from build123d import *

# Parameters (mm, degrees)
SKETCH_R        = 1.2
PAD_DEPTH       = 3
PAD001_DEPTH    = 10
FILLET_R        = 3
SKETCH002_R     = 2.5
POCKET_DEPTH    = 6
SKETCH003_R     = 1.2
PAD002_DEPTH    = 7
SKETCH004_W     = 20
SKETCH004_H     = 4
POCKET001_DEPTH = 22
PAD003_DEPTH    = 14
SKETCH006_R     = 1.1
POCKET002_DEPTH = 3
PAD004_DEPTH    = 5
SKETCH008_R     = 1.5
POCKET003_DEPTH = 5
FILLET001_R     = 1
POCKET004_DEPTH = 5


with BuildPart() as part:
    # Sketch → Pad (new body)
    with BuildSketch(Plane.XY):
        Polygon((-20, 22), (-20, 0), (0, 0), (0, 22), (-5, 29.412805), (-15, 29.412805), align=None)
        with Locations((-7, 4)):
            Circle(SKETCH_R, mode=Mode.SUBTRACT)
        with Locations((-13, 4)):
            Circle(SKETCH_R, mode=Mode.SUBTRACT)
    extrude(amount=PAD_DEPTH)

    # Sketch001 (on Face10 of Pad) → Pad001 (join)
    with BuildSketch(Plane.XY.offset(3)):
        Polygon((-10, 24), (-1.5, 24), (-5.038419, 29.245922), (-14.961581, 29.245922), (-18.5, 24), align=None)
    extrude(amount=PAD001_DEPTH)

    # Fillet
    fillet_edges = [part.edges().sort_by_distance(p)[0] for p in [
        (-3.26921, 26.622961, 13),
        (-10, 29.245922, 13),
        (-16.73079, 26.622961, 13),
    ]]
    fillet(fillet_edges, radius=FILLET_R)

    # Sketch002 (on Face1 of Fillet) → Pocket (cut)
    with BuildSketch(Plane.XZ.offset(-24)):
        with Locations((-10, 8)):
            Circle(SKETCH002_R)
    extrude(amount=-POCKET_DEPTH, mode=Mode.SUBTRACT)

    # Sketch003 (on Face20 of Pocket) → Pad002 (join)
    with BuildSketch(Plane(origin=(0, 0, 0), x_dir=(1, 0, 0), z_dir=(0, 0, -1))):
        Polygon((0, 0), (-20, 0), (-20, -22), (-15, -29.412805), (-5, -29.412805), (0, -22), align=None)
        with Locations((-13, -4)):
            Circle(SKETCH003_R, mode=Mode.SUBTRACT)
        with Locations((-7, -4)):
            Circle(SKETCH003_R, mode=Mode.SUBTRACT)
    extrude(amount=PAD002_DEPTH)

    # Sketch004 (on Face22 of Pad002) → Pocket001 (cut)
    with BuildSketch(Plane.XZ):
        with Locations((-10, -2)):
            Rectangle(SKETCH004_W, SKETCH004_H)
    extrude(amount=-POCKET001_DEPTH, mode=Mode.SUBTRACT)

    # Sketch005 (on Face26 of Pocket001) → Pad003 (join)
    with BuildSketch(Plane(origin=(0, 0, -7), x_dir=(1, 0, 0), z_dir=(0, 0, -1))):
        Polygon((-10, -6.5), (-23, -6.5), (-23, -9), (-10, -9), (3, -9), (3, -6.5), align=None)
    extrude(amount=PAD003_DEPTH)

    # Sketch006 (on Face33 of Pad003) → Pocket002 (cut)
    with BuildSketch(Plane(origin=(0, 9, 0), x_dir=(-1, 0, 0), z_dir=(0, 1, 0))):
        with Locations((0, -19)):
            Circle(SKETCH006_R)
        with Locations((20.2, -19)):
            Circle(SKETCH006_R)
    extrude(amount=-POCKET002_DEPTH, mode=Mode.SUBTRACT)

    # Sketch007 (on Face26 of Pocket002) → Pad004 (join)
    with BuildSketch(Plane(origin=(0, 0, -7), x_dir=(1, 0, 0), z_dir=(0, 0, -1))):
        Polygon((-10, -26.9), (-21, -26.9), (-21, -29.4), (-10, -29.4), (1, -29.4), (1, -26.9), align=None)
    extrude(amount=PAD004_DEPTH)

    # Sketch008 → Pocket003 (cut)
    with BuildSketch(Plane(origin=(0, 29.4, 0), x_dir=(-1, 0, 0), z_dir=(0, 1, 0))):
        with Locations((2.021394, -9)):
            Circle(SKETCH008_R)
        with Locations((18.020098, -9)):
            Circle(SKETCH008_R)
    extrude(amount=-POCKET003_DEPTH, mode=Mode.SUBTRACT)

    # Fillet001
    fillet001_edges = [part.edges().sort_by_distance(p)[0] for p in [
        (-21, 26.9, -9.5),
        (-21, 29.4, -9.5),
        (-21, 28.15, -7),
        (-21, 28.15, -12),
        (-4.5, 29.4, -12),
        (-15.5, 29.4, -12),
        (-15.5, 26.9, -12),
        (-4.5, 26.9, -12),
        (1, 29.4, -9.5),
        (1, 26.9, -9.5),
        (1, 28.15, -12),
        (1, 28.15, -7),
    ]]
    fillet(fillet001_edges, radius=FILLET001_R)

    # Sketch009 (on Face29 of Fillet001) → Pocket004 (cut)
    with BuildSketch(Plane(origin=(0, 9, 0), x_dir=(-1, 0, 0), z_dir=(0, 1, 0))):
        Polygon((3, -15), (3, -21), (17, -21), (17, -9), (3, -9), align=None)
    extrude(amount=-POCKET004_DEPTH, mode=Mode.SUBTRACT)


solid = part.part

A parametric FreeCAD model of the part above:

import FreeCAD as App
import Part
import Sketcher
Q = App.Units.Quantity


def edges_at(feature, points):
    """Names of the edges that pass closest to the given points."""
    edges = feature.Shape.Edges
    near = lambda p: min(range(len(edges)), key=lambda i: edges[i].distToShape(Part.Vertex(*p))[0])
    return sorted({f"Edge{near(p) + 1}" for p in points})

doc = App.newDocument("Part")
body = doc.addObject("PartDesign::Body", "Body")

sketch1 = doc.addObject("Sketcher::SketchObject", "Sketch")
body.addObject(sketch1)
sketch1.AttachmentSupport = (doc.XY_Plane, [""])
sketch1.MapMode = "FlatFace"
sketch1.addGeometry(Part.LineSegment(App.Vector(-20, 22, 0), App.Vector(-20, 0, 0)), False)
sketch1.addGeometry(Part.LineSegment(App.Vector(-20, 0, 0), App.Vector(0, 0, 0)), False)
sketch1.addGeometry(Part.LineSegment(App.Vector(0, 0, 0), App.Vector(0, 22, 0)), False)
sketch1.addGeometry(Part.LineSegment(App.Vector(0, 22, 0), App.Vector(-5, 29.412805, 0)), False)
sketch1.addGeometry(Part.LineSegment(App.Vector(-5, 29.412805, 0), App.Vector(-15, 29.412805, 0)), False)
sketch1.addGeometry(Part.LineSegment(App.Vector(-15, 29.412805, 0), App.Vector(-20, 22, 0)), False)
sketch1.addGeometry(Part.Circle(App.Vector(-13, 4, 0), App.Vector(0, 0, 1), 1.2), False)
sketch1.addGeometry(Part.Circle(App.Vector(-7, 4, 0), App.Vector(0, 0, 1), 1.2), False)
sketch1.addConstraint(Sketcher.Constraint("Coincident", 0, 2, 1, 1))
sketch1.addConstraint(Sketcher.Constraint("Coincident", 1, 2, 2, 1))
sketch1.addConstraint(Sketcher.Constraint("Coincident", 2, 2, 3, 1))
sketch1.addConstraint(Sketcher.Constraint("Coincident", 3, 2, 4, 1))
sketch1.addConstraint(Sketcher.Constraint("Coincident", 4, 2, 5, 1))
sketch1.addConstraint(Sketcher.Constraint("Coincident", 5, 2, 0, 1))
sketch1.addConstraint(Sketcher.Constraint("Vertical", 0))
sketch1.addConstraint(Sketcher.Constraint("Horizontal", 1))
sketch1.addConstraint(Sketcher.Constraint("Vertical", 2))
sketch1.addConstraint(Sketcher.Constraint("Horizontal", 4))
sketch1.addConstraint(Sketcher.Constraint("Coincident", 1, 2, -1, 1))
sketch1.addConstraint(Sketcher.Constraint("Equal", 6, 7))
sketch1.addConstraint(Sketcher.Constraint("Horizontal", 6, 3, 7, 3))
sketch1.addConstraint(Sketcher.Constraint("Horizontal", 2, 2, 5, 2))
sketch1.addConstraint(Sketcher.Constraint("Equal", 3, 5))
sketch1.addConstraint(Sketcher.Constraint("Diameter", 6, Q("2.4 mm")))
sketch1.addConstraint(Sketcher.Constraint("DistanceX", 1, 1, 1, 2, Q("20 mm")))
sketch1.addConstraint(Sketcher.Constraint("DistanceX", 4, 2, 4, 1, Q("10 mm")))
sketch1.addConstraint(Sketcher.Constraint("DistanceY", 0, 2, 0, 1, Q("22 mm")))
sketch1.addConstraint(Sketcher.Constraint("Angle", 3, Q("123.999999 deg")))
sketch1.addConstraint(Sketcher.Constraint("DistanceX", 6, 3, -1, 1, Q("13 mm")))
sketch1.addConstraint(Sketcher.Constraint("DistanceY", -1, 1, 6, 3, Q("4 mm")))
sketch1.addConstraint(Sketcher.Constraint("DistanceX", 7, 3, -1, 1, Q("7 mm")))
pad1 = doc.addObject("PartDesign::Pad", "Pad")
body.addObject(pad1)
pad1.Profile = sketch1
pad1.Length = 3

sketch2 = doc.addObject("Sketcher::SketchObject", "Sketch001")
body.addObject(sketch2)
sketch2.AttachmentSupport = (doc.XY_Plane, [""])
sketch2.MapMode = "FlatFace"
sketch2.AttachmentOffset = App.Placement(App.Vector(0, 0, 3), App.Rotation())
sketch2.addGeometry(Part.LineSegment(App.Vector(-1.5, 24, 0), App.Vector(-5.038419, 29.245922, 0)), False)
sketch2.addGeometry(Part.LineSegment(App.Vector(-5.038419, 29.245922, 0), App.Vector(-14.961581, 29.245922, 0)), False)
sketch2.addGeometry(Part.LineSegment(App.Vector(-14.961581, 29.245922, 0), App.Vector(-18.5, 24, 0)), False)
sketch2.addGeometry(Part.LineSegment(App.Vector(-18.5, 24, 0), App.Vector(-1.5, 24, 0)), False)
sketch2.addConstraint(Sketcher.Constraint("Coincident", 0, 2, 1, 1))
sketch2.addConstraint(Sketcher.Constraint("Coincident", 1, 2, 2, 1))
sketch2.addConstraint(Sketcher.Constraint("Coincident", 2, 2, 3, 1))
sketch2.addConstraint(Sketcher.Constraint("Coincident", 3, 2, 0, 1))
sketch2.addConstraint(Sketcher.Constraint("Horizontal", 1))
sketch2.addConstraint(Sketcher.Constraint("Horizontal", 3))
sketch2.addConstraint(Sketcher.Constraint("Equal", 0, 2))
sketch2.addConstraint(Sketcher.Constraint("DistanceX", 3, 1, 3, 2, Q("17 mm")))
sketch2.addConstraint(Sketcher.Constraint("Angle", 0, Q("123.999999 deg")))
sketch2.addConstraint(Sketcher.Constraint("DistanceY", -1, 1, 2, 2, Q("24 mm")))
sketch2.addConstraint(Sketcher.Constraint("DistanceX", 2, 2, -1, 1, Q("18.5 mm")))
sketch2.addConstraint(Sketcher.Constraint("DistanceX", 1, 2, 1, 1, Q("9.923162 mm")))
pad2 = doc.addObject("PartDesign::Pad", "Pad001")
body.addObject(pad2)
pad2.Profile = sketch2
pad2.Length = 10
doc.recompute()

fillet = doc.addObject("PartDesign::Fillet", "Fillet")
body.addObject(fillet)
fillet.Base = (pad2, edges_at(pad2, [(-3.269, 26.623, 13), (-10, 29.246, 13), (-16.731, 26.623, 13)]))
fillet.Radius = 3

sketch3 = doc.addObject("Sketcher::SketchObject", "Sketch002")
body.addObject(sketch3)
sketch3.AttachmentSupport = (doc.XZ_Plane, [""])
sketch3.MapMode = "FlatFace"
sketch3.AttachmentOffset = App.Placement(App.Vector(0, 0, -24), App.Rotation())
sketch3.addGeometry(Part.Circle(App.Vector(-10, 8, 0), App.Vector(0, 0, 1), 2.5), False)
sketch3.addConstraint(Sketcher.Constraint("Diameter", 0, Q("5 mm")))
sketch3.addConstraint(Sketcher.Constraint("DistanceX", 0, 3, -1, 1, Q("10 mm")))
sketch3.addConstraint(Sketcher.Constraint("DistanceY", -1, 1, 0, 3, Q("8 mm")))
pocket1 = doc.addObject("PartDesign::Pocket", "Pocket")
body.addObject(pocket1)
pocket1.Profile = sketch3
pocket1.Length = 6

sketch4 = doc.addObject("Sketcher::SketchObject", "Sketch003")
body.addObject(sketch4)
sketch4.AttachmentSupport = (doc.XY_Plane, [""])
sketch4.MapMode = "FlatFace"
sketch4.addGeometry(Part.LineSegment(App.Vector(0, 0, 0), App.Vector(-20, 0, 0)), False)
sketch4.addGeometry(Part.LineSegment(App.Vector(-20, 0, 0), App.Vector(-20, 22, 0)), False)
sketch4.addGeometry(Part.LineSegment(App.Vector(-20, 22, 0), App.Vector(-15, 29.412805, 0)), False)
sketch4.addGeometry(Part.LineSegment(App.Vector(-15, 29.412805, 0), App.Vector(-5, 29.412805, 0)), False)
sketch4.addGeometry(Part.LineSegment(App.Vector(-5, 29.412805, 0), App.Vector(0, 22, 0)), False)
sketch4.addGeometry(Part.LineSegment(App.Vector(0, 22, 0), App.Vector(0, 0, 0)), False)
sketch4.addGeometry(Part.Circle(App.Vector(-13, 4, 0), App.Vector(0, 0, 1), 1.2), False)
sketch4.addGeometry(Part.Circle(App.Vector(-7, 4, 0), App.Vector(0, 0, 1), 1.2), False)
sketch4.addConstraint(Sketcher.Constraint("Coincident", 0, 2, 1, 1))
sketch4.addConstraint(Sketcher.Constraint("Coincident", 1, 2, 2, 1))
sketch4.addConstraint(Sketcher.Constraint("Coincident", 2, 2, 3, 1))
sketch4.addConstraint(Sketcher.Constraint("Coincident", 3, 2, 4, 1))
sketch4.addConstraint(Sketcher.Constraint("Coincident", 4, 2, 5, 1))
sketch4.addConstraint(Sketcher.Constraint("Coincident", 5, 2, 0, 1))
sketch4.addConstraint(Sketcher.Constraint("Horizontal", 0))
sketch4.addConstraint(Sketcher.Constraint("Vertical", 1))
sketch4.addConstraint(Sketcher.Constraint("Horizontal", 3))
sketch4.addConstraint(Sketcher.Constraint("Vertical", 5))
sketch4.addConstraint(Sketcher.Constraint("Coincident", 5, 2, -1, 1))
sketch4.addConstraint(Sketcher.Constraint("Equal", 6, 7))
sketch4.addConstraint(Sketcher.Constraint("Horizontal", 6, 3, 7, 3))
sketch4.addConstraint(Sketcher.Constraint("Horizontal", 1, 2, 4, 2))
sketch4.addConstraint(Sketcher.Constraint("Equal", 2, 4))
sketch4.addConstraint(Sketcher.Constraint("Diameter", 6, Q("2.4 mm")))
sketch4.addConstraint(Sketcher.Constraint("DistanceX", 0, 2, 0, 1, Q("20 mm")))
sketch4.addConstraint(Sketcher.Constraint("DistanceX", 3, 1, 3, 2, Q("10 mm")))
sketch4.addConstraint(Sketcher.Constraint("DistanceY", 1, 1, 1, 2, Q("22 mm")))
sketch4.addConstraint(Sketcher.Constraint("Angle", 2, Q("56.000001 deg")))
sketch4.addConstraint(Sketcher.Constraint("DistanceX", 6, 3, -1, 1, Q("13 mm")))
sketch4.addConstraint(Sketcher.Constraint("DistanceY", -1, 1, 6, 3, Q("4 mm")))
sketch4.addConstraint(Sketcher.Constraint("DistanceX", 7, 3, -1, 1, Q("7 mm")))
pad3 = doc.addObject("PartDesign::Pad", "Pad002")
body.addObject(pad3)
pad3.Profile = sketch4
pad3.Length = 7
pad3.Reversed = True

sketch5 = doc.addObject("Sketcher::SketchObject", "Sketch004")
body.addObject(sketch5)
sketch5.AttachmentSupport = (doc.XZ_Plane, [""])
sketch5.MapMode = "FlatFace"
sketch5.addGeometry(Part.LineSegment(App.Vector(-20, 0, 0), App.Vector(-20, -4, 0)), False)
sketch5.addGeometry(Part.LineSegment(App.Vector(-20, -4, 0), App.Vector(0, -4, 0)), False)
sketch5.addGeometry(Part.LineSegment(App.Vector(0, -4, 0), App.Vector(0, 0, 0)), False)
sketch5.addGeometry(Part.LineSegment(App.Vector(0, 0, 0), App.Vector(-20, 0, 0)), False)
sketch5.addConstraint(Sketcher.Constraint("Coincident", 0, 2, 1, 1))
sketch5.addConstraint(Sketcher.Constraint("Coincident", 1, 2, 2, 1))
sketch5.addConstraint(Sketcher.Constraint("Coincident", 2, 2, 3, 1))
sketch5.addConstraint(Sketcher.Constraint("Coincident", 3, 2, 0, 1))
sketch5.addConstraint(Sketcher.Constraint("Vertical", 0))
sketch5.addConstraint(Sketcher.Constraint("Horizontal", 1))
sketch5.addConstraint(Sketcher.Constraint("Vertical", 2))
sketch5.addConstraint(Sketcher.Constraint("Horizontal", 3))
sketch5.addConstraint(Sketcher.Constraint("Coincident", 2, 2, -1, 1))
sketch5.addConstraint(Sketcher.Constraint("DistanceX", 1, 1, 1, 2, Q("20 mm")))
sketch5.addConstraint(Sketcher.Constraint("DistanceY", 0, 2, 0, 1, Q("4 mm")))
pocket2 = doc.addObject("PartDesign::Pocket", "Pocket001")
body.addObject(pocket2)
pocket2.Profile = sketch5
pocket2.Length = 22

sketch6 = doc.addObject("Sketcher::SketchObject", "Sketch005")
body.addObject(sketch6)
sketch6.AttachmentSupport = (doc.XY_Plane, [""])
sketch6.MapMode = "FlatFace"
sketch6.AttachmentOffset = App.Placement(App.Vector(0, 0, -7), App.Rotation())
sketch6.addGeometry(Part.LineSegment(App.Vector(-23, 6.5, 0), App.Vector(-23, 9, 0)), False)
sketch6.addGeometry(Part.LineSegment(App.Vector(-23, 9, 0), App.Vector(3, 9, 0)), False)
sketch6.addGeometry(Part.LineSegment(App.Vector(3, 9, 0), App.Vector(3, 6.5, 0)), False)
sketch6.addGeometry(Part.LineSegment(App.Vector(3, 6.5, 0), App.Vector(-23, 6.5, 0)), False)
sketch6.addConstraint(Sketcher.Constraint("Coincident", 0, 2, 1, 1))
sketch6.addConstraint(Sketcher.Constraint("Coincident", 1, 2, 2, 1))
sketch6.addConstraint(Sketcher.Constraint("Coincident", 2, 2, 3, 1))
sketch6.addConstraint(Sketcher.Constraint("Coincident", 3, 2, 0, 1))
sketch6.addConstraint(Sketcher.Constraint("Vertical", 0))
sketch6.addConstraint(Sketcher.Constraint("Horizontal", 1))
sketch6.addConstraint(Sketcher.Constraint("Vertical", 2))
sketch6.addConstraint(Sketcher.Constraint("Horizontal", 3))
sketch6.addConstraint(Sketcher.Constraint("DistanceX", 1, 1, 1, 2, Q("26 mm")))
sketch6.addConstraint(Sketcher.Constraint("DistanceY", 0, 1, 0, 2, Q("2.5 mm")))
sketch6.addConstraint(Sketcher.Constraint("DistanceX", 0, 2, -1, 1, Q("23 mm")))
sketch6.addConstraint(Sketcher.Constraint("DistanceY", -1, 1, 0, 2, Q("9 mm")))
pad4 = doc.addObject("PartDesign::Pad", "Pad003")
body.addObject(pad4)
pad4.Profile = sketch6
pad4.Length = 14
pad4.Reversed = True

sketch7 = doc.addObject("Sketcher::SketchObject", "Sketch006")
body.addObject(sketch7)
sketch7.AttachmentSupport = (doc.XZ_Plane, [""])
sketch7.MapMode = "FlatFace"
sketch7.AttachmentOffset = App.Placement(App.Vector(0, 0, -9), App.Rotation())
sketch7.addGeometry(Part.Circle(App.Vector(0, -19, 0), App.Vector(0, 0, 1), 1.1), False)
sketch7.addGeometry(Part.Circle(App.Vector(-20.2, -19, 0), App.Vector(0, 0, 1), 1.1), False)
sketch7.addConstraint(Sketcher.Constraint("Equal", 0, 1))
sketch7.addConstraint(Sketcher.Constraint("PointOnObject", 0, 3, -2))
sketch7.addConstraint(Sketcher.Constraint("Horizontal", 0, 3, 1, 3))
sketch7.addConstraint(Sketcher.Constraint("Diameter", 0, Q("2.2 mm")))
sketch7.addConstraint(Sketcher.Constraint("DistanceY", 0, 3, -1, 1, Q("19 mm")))
sketch7.addConstraint(Sketcher.Constraint("DistanceX", 1, 3, -1, 1, Q("20.2 mm")))
pocket3 = doc.addObject("PartDesign::Pocket", "Pocket002")
body.addObject(pocket3)
pocket3.Profile = sketch7
pocket3.Length = 3
pocket3.Reversed = True

sketch8 = doc.addObject("Sketcher::SketchObject", "Sketch007")
body.addObject(sketch8)
sketch8.AttachmentSupport = (doc.XY_Plane, [""])
sketch8.MapMode = "FlatFace"
sketch8.AttachmentOffset = App.Placement(App.Vector(0, 0, -7), App.Rotation())
sketch8.addGeometry(Part.LineSegment(App.Vector(-21, 26.9, 0), App.Vector(-21, 29.4, 0)), False)
sketch8.addGeometry(Part.LineSegment(App.Vector(-21, 29.4, 0), App.Vector(1, 29.4, 0)), False)
sketch8.addGeometry(Part.LineSegment(App.Vector(1, 29.4, 0), App.Vector(1, 26.9, 0)), False)
sketch8.addGeometry(Part.LineSegment(App.Vector(1, 26.9, 0), App.Vector(-21, 26.9, 0)), False)
sketch8.addConstraint(Sketcher.Constraint("Coincident", 0, 2, 1, 1))
sketch8.addConstraint(Sketcher.Constraint("Coincident", 1, 2, 2, 1))
sketch8.addConstraint(Sketcher.Constraint("Coincident", 2, 2, 3, 1))
sketch8.addConstraint(Sketcher.Constraint("Coincident", 3, 2, 0, 1))
sketch8.addConstraint(Sketcher.Constraint("Vertical", 0))
sketch8.addConstraint(Sketcher.Constraint("Horizontal", 1))
sketch8.addConstraint(Sketcher.Constraint("Vertical", 2))
sketch8.addConstraint(Sketcher.Constraint("Horizontal", 3))
sketch8.addConstraint(Sketcher.Constraint("DistanceX", 1, 1, 1, 2, Q("22 mm")))
sketch8.addConstraint(Sketcher.Constraint("DistanceY", 0, 1, 0, 2, Q("2.5 mm")))
sketch8.addConstraint(Sketcher.Constraint("DistanceX", 0, 2, -1, 1, Q("21 mm")))
sketch8.addConstraint(Sketcher.Constraint("DistanceY", -1, 1, 0, 2, Q("29.4 mm")))
pad5 = doc.addObject("PartDesign::Pad", "Pad004")
body.addObject(pad5)
pad5.Profile = sketch8
pad5.Length = 5
pad5.Reversed = True

sketch9 = doc.addObject("Sketcher::SketchObject", "Sketch008")
body.addObject(sketch9)
sketch9.AttachmentSupport = (doc.XZ_Plane, [""])
sketch9.MapMode = "FlatFace"
sketch9.AttachmentOffset = App.Placement(App.Vector(0, 0, -29.4), App.Rotation())
sketch9.addGeometry(Part.Circle(App.Vector(-2.021394, -9, 0), App.Vector(0, 0, 1), 1.5), False)
sketch9.addGeometry(Part.Circle(App.Vector(-18.020098, -9, 0), App.Vector(0, 0, 1), 1.5), False)
sketch9.addConstraint(Sketcher.Constraint("Equal", 0, 1))
sketch9.addConstraint(Sketcher.Constraint("Horizontal", 0, 3, 1, 3))
sketch9.addConstraint(Sketcher.Constraint("Diameter", 0, Q("3 mm")))
sketch9.addConstraint(Sketcher.Constraint("DistanceY", 0, 3, -1, 1, Q("9 mm")))
sketch9.addConstraint(Sketcher.Constraint("DistanceX", 1, 3, -1, 1, Q("18.020098 mm")))
sketch9.addConstraint(Sketcher.Constraint("DistanceX", 0, 3, -1, 1, Q("2.021394 mm")))
pocket4 = doc.addObject("PartDesign::Pocket", "Pocket003")
body.addObject(pocket4)
pocket4.Profile = sketch9
pocket4.Length = 5
pocket4.Reversed = True
doc.recompute()

fillet2 = doc.addObject("PartDesign::Fillet", "Fillet001")
body.addObject(fillet2)
fillet2.Base = (pocket4, edges_at(pocket4, [
    (-21, 26.9, -9.5),
    (-21, 29.4, -9.5),
    (-21, 28.15, -7),
    (-21, 28.15, -12),
    (-10, 29.4, -12),
    (-10, 29.4, -12),
    (-10, 26.9, -12),
    (-10, 26.9, -12),
    (1, 29.4, -9.5),
    (1, 26.9, -9.5),
    (1, 28.15, -12),
    (1, 28.15, -7),
]))
fillet2.Radius = 1

sketch10 = doc.addObject("Sketcher::SketchObject", "Sketch009")
body.addObject(sketch10)
sketch10.AttachmentSupport = (doc.XZ_Plane, [""])
sketch10.MapMode = "FlatFace"
sketch10.AttachmentOffset = App.Placement(App.Vector(0, 0, -9), App.Rotation())
sketch10.addGeometry(Part.LineSegment(App.Vector(-3, -21, 0), App.Vector(-17, -21, 0)), False)
sketch10.addGeometry(Part.LineSegment(App.Vector(-17, -21, 0), App.Vector(-17, -9, 0)), False)
sketch10.addGeometry(Part.LineSegment(App.Vector(-17, -9, 0), App.Vector(-3, -9, 0)), False)
sketch10.addGeometry(Part.LineSegment(App.Vector(-3, -9, 0), App.Vector(-3, -21, 0)), False)
sketch10.addConstraint(Sketcher.Constraint("Coincident", 0, 2, 1, 1))
sketch10.addConstraint(Sketcher.Constraint("Coincident", 1, 2, 2, 1))
sketch10.addConstraint(Sketcher.Constraint("Coincident", 2, 2, 3, 1))
sketch10.addConstraint(Sketcher.Constraint("Coincident", 3, 2, 0, 1))
sketch10.addConstraint(Sketcher.Constraint("Horizontal", 0))
sketch10.addConstraint(Sketcher.Constraint("Vertical", 1))
sketch10.addConstraint(Sketcher.Constraint("Horizontal", 2))
sketch10.addConstraint(Sketcher.Constraint("Vertical", 3))
sketch10.addConstraint(Sketcher.Constraint("DistanceX", 0, 2, 0, 1, Q("14 mm")))
sketch10.addConstraint(Sketcher.Constraint("DistanceY", 1, 1, 1, 2, Q("12 mm")))
sketch10.addConstraint(Sketcher.Constraint("DistanceX", 0, 2, -1, 1, Q("17 mm")))
sketch10.addConstraint(Sketcher.Constraint("DistanceY", 0, 2, -1, 1, Q("21 mm")))
pocket5 = doc.addObject("PartDesign::Pocket", "Pocket004")
body.addObject(pocket5)
pocket5.Profile = sketch10
pocket5.Length = 5
pocket5.Reversed = True

doc.recompute()
